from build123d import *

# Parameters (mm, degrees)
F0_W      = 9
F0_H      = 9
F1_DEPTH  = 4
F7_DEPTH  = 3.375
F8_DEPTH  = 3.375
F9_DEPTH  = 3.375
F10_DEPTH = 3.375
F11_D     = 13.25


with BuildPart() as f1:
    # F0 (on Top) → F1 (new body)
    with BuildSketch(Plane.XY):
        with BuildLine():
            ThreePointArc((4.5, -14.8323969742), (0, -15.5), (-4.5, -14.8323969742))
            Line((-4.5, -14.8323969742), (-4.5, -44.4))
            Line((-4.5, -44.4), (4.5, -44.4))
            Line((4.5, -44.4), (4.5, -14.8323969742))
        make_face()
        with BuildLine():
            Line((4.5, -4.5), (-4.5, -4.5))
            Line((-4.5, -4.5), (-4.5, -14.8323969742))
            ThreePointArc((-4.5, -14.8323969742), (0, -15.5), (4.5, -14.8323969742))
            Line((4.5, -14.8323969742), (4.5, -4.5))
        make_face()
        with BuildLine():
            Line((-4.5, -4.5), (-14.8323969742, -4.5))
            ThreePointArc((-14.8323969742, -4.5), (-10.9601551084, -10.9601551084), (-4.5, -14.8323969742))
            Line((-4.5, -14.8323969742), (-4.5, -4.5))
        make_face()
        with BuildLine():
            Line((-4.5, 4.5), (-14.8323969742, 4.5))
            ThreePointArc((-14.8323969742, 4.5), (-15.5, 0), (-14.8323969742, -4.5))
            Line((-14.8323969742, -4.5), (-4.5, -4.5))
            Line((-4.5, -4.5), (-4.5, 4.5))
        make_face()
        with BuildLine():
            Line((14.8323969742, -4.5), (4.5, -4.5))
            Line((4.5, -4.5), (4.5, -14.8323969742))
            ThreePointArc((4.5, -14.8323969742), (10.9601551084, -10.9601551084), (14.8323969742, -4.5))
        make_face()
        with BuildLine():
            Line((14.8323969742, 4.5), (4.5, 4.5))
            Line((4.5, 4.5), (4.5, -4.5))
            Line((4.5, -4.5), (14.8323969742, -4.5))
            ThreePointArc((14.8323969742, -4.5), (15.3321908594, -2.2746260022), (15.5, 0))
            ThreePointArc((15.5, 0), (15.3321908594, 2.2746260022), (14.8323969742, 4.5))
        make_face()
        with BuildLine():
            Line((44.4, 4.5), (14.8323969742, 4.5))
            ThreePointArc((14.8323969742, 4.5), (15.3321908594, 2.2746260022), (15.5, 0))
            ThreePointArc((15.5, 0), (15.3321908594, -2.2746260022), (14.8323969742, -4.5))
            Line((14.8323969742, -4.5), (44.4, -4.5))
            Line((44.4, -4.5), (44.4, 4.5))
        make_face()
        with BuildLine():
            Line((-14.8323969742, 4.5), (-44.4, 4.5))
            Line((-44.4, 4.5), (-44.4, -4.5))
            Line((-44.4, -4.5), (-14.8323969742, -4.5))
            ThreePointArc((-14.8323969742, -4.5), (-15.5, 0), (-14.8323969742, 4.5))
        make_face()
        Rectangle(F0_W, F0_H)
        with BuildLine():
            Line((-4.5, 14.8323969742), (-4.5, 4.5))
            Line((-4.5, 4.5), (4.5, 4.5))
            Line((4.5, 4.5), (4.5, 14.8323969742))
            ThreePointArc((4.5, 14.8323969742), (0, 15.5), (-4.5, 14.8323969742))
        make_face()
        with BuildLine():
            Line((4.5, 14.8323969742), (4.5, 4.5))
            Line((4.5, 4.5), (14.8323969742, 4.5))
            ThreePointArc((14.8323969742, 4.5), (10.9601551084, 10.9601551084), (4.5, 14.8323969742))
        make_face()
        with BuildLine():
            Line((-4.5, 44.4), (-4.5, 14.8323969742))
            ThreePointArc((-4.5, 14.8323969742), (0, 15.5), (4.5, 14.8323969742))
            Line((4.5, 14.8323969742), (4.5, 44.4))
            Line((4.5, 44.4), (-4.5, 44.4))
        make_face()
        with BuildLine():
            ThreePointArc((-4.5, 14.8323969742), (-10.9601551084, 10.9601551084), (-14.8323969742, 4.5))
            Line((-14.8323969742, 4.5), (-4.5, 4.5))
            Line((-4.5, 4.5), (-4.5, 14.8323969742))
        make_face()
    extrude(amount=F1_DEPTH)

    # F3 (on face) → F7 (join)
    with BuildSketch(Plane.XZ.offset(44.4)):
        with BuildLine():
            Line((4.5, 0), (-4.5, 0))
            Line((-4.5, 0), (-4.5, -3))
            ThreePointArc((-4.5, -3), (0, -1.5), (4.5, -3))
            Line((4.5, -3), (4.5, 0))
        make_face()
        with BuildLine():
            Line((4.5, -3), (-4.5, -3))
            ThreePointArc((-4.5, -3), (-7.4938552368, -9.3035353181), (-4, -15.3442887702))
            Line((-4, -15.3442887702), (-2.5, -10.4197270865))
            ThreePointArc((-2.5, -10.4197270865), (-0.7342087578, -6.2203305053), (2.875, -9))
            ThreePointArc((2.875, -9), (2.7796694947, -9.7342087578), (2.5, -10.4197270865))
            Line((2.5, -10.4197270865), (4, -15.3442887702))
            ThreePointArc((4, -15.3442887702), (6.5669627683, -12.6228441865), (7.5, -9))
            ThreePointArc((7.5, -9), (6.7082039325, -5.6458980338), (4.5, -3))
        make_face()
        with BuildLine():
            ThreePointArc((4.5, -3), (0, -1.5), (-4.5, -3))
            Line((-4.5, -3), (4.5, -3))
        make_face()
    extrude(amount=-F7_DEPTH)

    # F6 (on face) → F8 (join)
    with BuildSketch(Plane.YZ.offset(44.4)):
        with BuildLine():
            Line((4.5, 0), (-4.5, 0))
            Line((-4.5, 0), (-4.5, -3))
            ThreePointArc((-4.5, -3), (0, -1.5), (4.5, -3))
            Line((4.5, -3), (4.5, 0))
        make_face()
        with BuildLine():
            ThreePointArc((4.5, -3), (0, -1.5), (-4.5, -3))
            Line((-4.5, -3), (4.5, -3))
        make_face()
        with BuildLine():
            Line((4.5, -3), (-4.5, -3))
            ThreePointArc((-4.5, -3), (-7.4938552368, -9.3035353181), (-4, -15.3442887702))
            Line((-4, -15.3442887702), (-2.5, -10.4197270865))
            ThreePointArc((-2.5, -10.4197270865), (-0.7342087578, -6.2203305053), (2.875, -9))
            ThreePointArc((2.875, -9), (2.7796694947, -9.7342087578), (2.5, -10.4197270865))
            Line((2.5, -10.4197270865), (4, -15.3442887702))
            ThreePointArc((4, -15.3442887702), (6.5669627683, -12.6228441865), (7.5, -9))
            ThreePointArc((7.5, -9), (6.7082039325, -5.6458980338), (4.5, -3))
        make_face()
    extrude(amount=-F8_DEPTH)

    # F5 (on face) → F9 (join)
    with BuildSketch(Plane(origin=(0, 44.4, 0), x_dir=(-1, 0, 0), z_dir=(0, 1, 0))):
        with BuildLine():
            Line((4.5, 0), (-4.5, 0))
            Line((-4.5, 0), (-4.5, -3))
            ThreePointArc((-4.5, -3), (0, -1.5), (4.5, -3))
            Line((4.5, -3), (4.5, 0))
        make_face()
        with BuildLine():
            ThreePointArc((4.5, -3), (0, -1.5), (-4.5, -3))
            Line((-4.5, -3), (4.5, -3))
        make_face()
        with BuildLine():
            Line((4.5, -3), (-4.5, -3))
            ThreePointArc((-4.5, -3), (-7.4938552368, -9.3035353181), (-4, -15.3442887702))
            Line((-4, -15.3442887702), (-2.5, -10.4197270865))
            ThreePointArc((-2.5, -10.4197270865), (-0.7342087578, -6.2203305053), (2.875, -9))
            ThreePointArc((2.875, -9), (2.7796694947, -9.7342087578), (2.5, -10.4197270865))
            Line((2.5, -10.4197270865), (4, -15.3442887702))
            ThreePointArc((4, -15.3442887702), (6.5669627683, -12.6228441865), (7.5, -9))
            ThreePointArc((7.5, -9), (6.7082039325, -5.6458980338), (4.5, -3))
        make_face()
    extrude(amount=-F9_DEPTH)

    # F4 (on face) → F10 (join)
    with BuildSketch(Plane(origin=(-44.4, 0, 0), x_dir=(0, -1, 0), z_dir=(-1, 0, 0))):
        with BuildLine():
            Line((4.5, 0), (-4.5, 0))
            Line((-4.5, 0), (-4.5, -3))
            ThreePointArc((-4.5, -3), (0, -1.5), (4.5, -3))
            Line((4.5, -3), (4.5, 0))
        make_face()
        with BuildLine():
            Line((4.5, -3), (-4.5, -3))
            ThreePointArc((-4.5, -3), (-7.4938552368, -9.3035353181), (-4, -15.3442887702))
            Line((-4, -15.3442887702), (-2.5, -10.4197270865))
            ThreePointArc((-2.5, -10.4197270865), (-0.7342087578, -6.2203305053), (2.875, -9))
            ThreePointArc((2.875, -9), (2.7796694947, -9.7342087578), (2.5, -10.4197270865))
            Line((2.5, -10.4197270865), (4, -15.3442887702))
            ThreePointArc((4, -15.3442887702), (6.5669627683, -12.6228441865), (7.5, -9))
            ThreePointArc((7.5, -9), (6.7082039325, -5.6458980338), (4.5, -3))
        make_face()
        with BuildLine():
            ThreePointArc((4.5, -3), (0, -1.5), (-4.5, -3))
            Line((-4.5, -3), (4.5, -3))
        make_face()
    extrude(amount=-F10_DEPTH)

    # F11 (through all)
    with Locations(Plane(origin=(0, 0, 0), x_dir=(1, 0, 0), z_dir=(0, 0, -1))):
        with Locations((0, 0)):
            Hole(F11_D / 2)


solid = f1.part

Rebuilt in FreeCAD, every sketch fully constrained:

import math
import FreeCAD as App
import Part
import Sketcher

V = App.Vector

doc = App.newDocument("Part")
body = doc.addObject("PartDesign::Body", "Body")

sketch1 = doc.addObject("Sketcher::SketchObject", "Sketch")
body.addObject(sketch1)
sketch1.AttachmentSupport = (doc.XY_Plane, [""])
sketch1.MapMode = "FlatFace"
sketch1.addGeometry([
    Part.ArcOfCircle(Part.Circle(V(0, 0, 0), V(0, 0, 1), 15.5), math.radians(-163.122731), math.radians(-106.877269)),
    Part.LineSegment(V(-4.5, -14.832397, 0), V(-4.5, -44.4, 0)),
    Part.LineSegment(V(-4.5, -44.4, 0), V(4.5, -44.4, 0)),
    Part.LineSegment(V(4.5, -44.4, 0), V(4.5, -14.832397, 0)),
    Part.ArcOfCircle(Part.Circle(V(0, 0, 0), V(0, 0, 1), 15.5), math.radians(-73.122731), math.radians(-16.877269)),
    Part.LineSegment(V(14.832397, -4.5, 0), V(44.4, -4.5, 0)),
    Part.LineSegment(V(44.4, -4.5, 0), V(44.4, 4.5, 0)),
    Part.LineSegment(V(44.4, 4.5, 0), V(14.832397, 4.5, 0)),
    Part.ArcOfCircle(Part.Circle(V(0, 0, 0), V(0, 0, 1), 15.5), math.radians(16.877269), math.radians(73.122731)),
    Part.LineSegment(V(4.5, 14.832397, 0), V(4.5, 44.4, 0)),
    Part.LineSegment(V(4.5, 44.4, 0), V(-4.5, 44.4, 0)),
    Part.LineSegment(V(-4.5, 44.4, 0), V(-4.5, 14.832397, 0)),
    Part.ArcOfCircle(Part.Circle(V(0, 0, 0), V(0, 0, 1), 15.5), math.radians(106.877269), math.radians(163.122731)),
    Part.LineSegment(V(-14.832397, 4.5, 0), V(-44.4, 4.5, 0)),
    Part.LineSegment(V(-44.4, 4.5, 0), V(-44.4, -4.5, 0)),
    Part.LineSegment(V(-44.4, -4.5, 0), V(-14.832397, -4.5, 0)),
], False)
sketch1.addConstraint([
    Sketcher.Constraint("Coincident", 0, 2, 1, 1),
    Sketcher.Constraint("Coincident", 1, 2, 2, 1),
    Sketcher.Constraint("Coincident", 2, 2, 3, 1),
    Sketcher.Constraint("Coincident", 3, 2, 4, 1),
    Sketcher.Constraint("Coincident", 4, 2, 5, 1),
    Sketcher.Constraint("Coincident", 5, 2, 6, 1),
    Sketcher.Constraint("Coincident", 6, 2, 7, 1),
    Sketcher.Constraint("Coincident", 7, 2, 8, 1),
    Sketcher.Constraint("Coincident", 8, 2, 9, 1),
    Sketcher.Constraint("Coincident", 9, 2, 10, 1),
    Sketcher.Constraint("Coincident", 10, 2, 11, 1),
    Sketcher.Constraint("Coincident", 11, 2, 12, 1),
    Sketcher.Constraint("Coincident", 12, 2, 13, 1),
    Sketcher.Constraint("Coincident", 13, 2, 14, 1),
    Sketcher.Constraint("Coincident", 14, 2, 15, 1),
    Sketcher.Constraint("Coincident", 15, 2, 0, 1),
    Sketcher.Constraint("Vertical", 1),
    Sketcher.Constraint("Horizontal", 2),
    Sketcher.Constraint("Vertical", 3),
    Sketcher.Constraint("Horizontal", 5),
    Sketcher.Constraint("Vertical", 6),
    Sketcher.Constraint("Horizontal", 7),
    Sketcher.Constraint("Vertical", 9),
    Sketcher.Constraint("Horizontal", 10),
    Sketcher.Constraint("Vertical", 11),
    Sketcher.Constraint("Horizontal", 13),
    Sketcher.Constraint("Vertical", 14),
    Sketcher.Constraint("Horizontal", 15),
    Sketcher.Constraint("Coincident", 0, 3, -1, 1),
    Sketcher.Constraint("Coincident", 4, 3, -1, 1),
    Sketcher.Constraint("Coincident", 8, 3, -1, 1),
    Sketcher.Constraint("Coincident", 12, 3, -1, 1),
    Sketcher.Constraint("Equal", 0, 4),
    Sketcher.Constraint("Equal", 4, 8),
    Sketcher.Constraint("Equal", 8, 12),
    Sketcher.Constraint("Symmetric", 1, 2, 9, 2, -1, 1),
    Sketcher.Constraint("Symmetric", 5, 2, 13, 2, -1, 1),
    Sketcher.Constraint("Horizontal", 0, 2, 3, 2),
    Sketcher.Constraint("Horizontal", 8, 2, 11, 2),
    Sketcher.Constraint("Horizontal", 7, 2, 12, 2),
    Sketcher.Constraint("Horizontal", 5, 2, 14, 2),
    Sketcher.Constraint("Equal", 15, 1),
    Sketcher.Constraint("Equal", 10, 6),
    Sketcher.Constraint("Radius", 0, 15.5),
    Sketcher.Constraint("DistanceX", 2, 1, 2, 2, 9.0),
    Sketcher.Constraint("DistanceY", 1, 2, -1, 1, 44.4),
])
pad1 = doc.addObject("PartDesign::Pad", "Pad")
body.addObject(pad1)
pad1.Profile = sketch1
pad1.Length = 4

sketch2 = doc.addObject("Sketcher::SketchObject", "Sketch001")
body.addObject(sketch2)
sketch2.AttachmentSupport = (doc.XZ_Plane, [""])
sketch2.MapMode = "FlatFace"
sketch2.AttachmentOffset = App.Placement(V(0, 0, 44.4), App.Rotation())
sketch2.addGeometry([
    Part.LineSegment(V(4.5, 0, 0), V(-4.5, 0, 0)),
    Part.LineSegment(V(-4.5, 0, 0), V(-4.5, -3, 0)),
    Part.ArcOfCircle(Part.Circle(V(0, -9, 0), V(0, 0, 1), 7.5), math.radians(126.869898), math.radians(237.769047)),
    Part.LineSegment(V(-4, -15.344289, 0), V(-2.5, -10.419727, 0)),
    Part.ArcOfCircle(Part.Circle(V(0, -9, 0), V(0, 0, 1), 2.875), math.radians(0), math.radians(209.591846)),
    Part.ArcOfCircle(Part.Circle(V(0, -9, 0), V(0, 0, 1), 2.875), math.radians(-29.591846), math.radians(0)),
    Part.LineSegment(V(2.5, -10.419727, 0), V(4, -15.344289, 0)),
    Part.ArcOfCircle(Part.Circle(V(0, -9, 0), V(0, 0, 1), 7.5), math.radians(-57.769047), math.radians(0)),
    Part.ArcOfCircle(Part.Circle(V(0, -9, 0), V(0, 0, 1), 7.5), math.radians(0), math.radians(53.130102)),
    Part.LineSegment(V(4.5, -3, 0), V(4.5, 0, 0)),
], False)
sketch2.addConstraint([
    Sketcher.Constraint("Coincident", 0, 2, 1, 1),
    Sketcher.Constraint("Coincident", 1, 2, 2, 1),
    Sketcher.Constraint("Coincident", 2, 2, 3, 1),
    Sketcher.Constraint("Coincident", 3, 2, 4, 2),
    Sketcher.Constraint("Tangent", 4, 1, 5, 2),
    Sketcher.Constraint("Coincident", 5, 1, 6, 1),
    Sketcher.Constraint("Coincident", 6, 2, 7, 1),
    Sketcher.Constraint("Tangent", 7, 2, 8, 1),
    Sketcher.Constraint("Coincident", 8, 2, 9, 1),
    Sketcher.Constraint("Coincident", 9, 2, 0, 1),
    Sketcher.Constraint("Horizontal", 0),
    Sketcher.Constraint("Vertical", 1),
    Sketcher.Constraint("Vertical", 9),
    Sketcher.Constraint("Coincident", 4, 3, 2, 3),
    Sketcher.Constraint("Coincident", 7, 3, 2, 3),
    Sketcher.Constraint("Equal", 4, 5),
    Sketcher.Constraint("Equal", 2, 7),
    Sketcher.Constraint("Equal", 7, 8),
    Sketcher.Constraint("Symmetric", 0, 2, 9, 2, -1, 1),
    Sketcher.Constraint("Symmetric", 3, 2, 5, 1, -2),
    Sketcher.Constraint("Horizontal", 8, 3, 4, 1),
    Sketcher.Constraint("Horizontal", 2, 2, 6, 2),
    Sketcher.Constraint("Horizontal", 4, 1, 7, 2),
    Sketcher.Constraint("Radius", 2, 7.5),
    Sketcher.Constraint("DistanceX", 0, 2, 0, 1, 9.0),
    Sketcher.Constraint("DistanceY", 1, 2, 1, 1, 3.0),
    Sketcher.Constraint("DistanceX", 2, 2, -1, 1, 4.0),
    Sketcher.Constraint("Radius", 4, 2.875),
    Sketcher.Constraint("DistanceX", 5, 1, 7, 2, 5.0),
])
pad2 = doc.addObject("PartDesign::Pad", "Pad001")
body.addObject(pad2)
pad2.Profile = sketch2
pad2.Length = 3.375
pad2.Reversed = True

sketch3 = doc.addObject("Sketcher::SketchObject", "Sketch002")
body.addObject(sketch3)
sketch3.AttachmentSupport = (doc.YZ_Plane, [""])
sketch3.MapMode = "FlatFace"
sketch3.AttachmentOffset = App.Placement(V(0, 0, 44.4), App.Rotation())
sketch3.addGeometry([
    Part.LineSegment(V(4.5, 0, 0), V(-4.5, 0, 0)),
    Part.LineSegment(V(-4.5, 0, 0), V(-4.5, -3, 0)),
    Part.ArcOfCircle(Part.Circle(V(0, -9, 0), V(0, 0, 1), 7.5), math.radians(126.869898), math.radians(237.769047)),
    Part.LineSegment(V(-4, -15.344289, 0), V(-2.5, -10.419727, 0)),
    Part.ArcOfCircle(Part.Circle(V(0, -9, 0), V(0, 0, 1), 2.875), math.radians(0), math.radians(209.591846)),
    Part.ArcOfCircle(Part.Circle(V(0, -9, 0), V(0, 0, 1), 2.875), math.radians(-29.591846), math.radians(0)),
    Part.LineSegment(V(2.5, -10.419727, 0), V(4, -15.344289, 0)),
    Part.ArcOfCircle(Part.Circle(V(0, -9, 0), V(0, 0, 1), 7.5), math.radians(-57.769047), math.radians(0)),
    Part.ArcOfCircle(Part.Circle(V(0, -9, 0), V(0, 0, 1), 7.5), math.radians(0), math.radians(53.130102)),
    Part.LineSegment(V(4.5, -3, 0), V(4.5, 0, 0)),
], False)
sketch3.addConstraint([
    Sketcher.Constraint("Coincident", 0, 2, 1, 1),
    Sketcher.Constraint("Coincident", 1, 2, 2, 1),
    Sketcher.Constraint("Coincident", 2, 2, 3, 1),
    Sketcher.Constraint("Coincident", 3, 2, 4, 2),
    Sketcher.Constraint("Tangent", 4, 1, 5, 2),
    Sketcher.Constraint("Coincident", 5, 1, 6, 1),
    Sketcher.Constraint("Coincident", 6, 2, 7, 1),
    Sketcher.Constraint("Tangent", 7, 2, 8, 1),
    Sketcher.Constraint("Coincident", 8, 2, 9, 1),
    Sketcher.Constraint("Coincident", 9, 2, 0, 1),
    Sketcher.Constraint("Horizontal", 0),
    Sketcher.Constraint("Vertical", 1),
    Sketcher.Constraint("Vertical", 9),
    Sketcher.Constraint("Coincident", 4, 3, 2, 3),
    Sketcher.Constraint("Coincident", 7, 3, 2, 3),
    Sketcher.Constraint("Equal", 4, 5),
    Sketcher.Constraint("Equal", 2, 7),
    Sketcher.Constraint("Equal", 7, 8),
    Sketcher.Constraint("Symmetric", 0, 2, 9, 2, -1, 1),
    Sketcher.Constraint("Symmetric", 3, 2, 5, 1, -2),
    Sketcher.Constraint("Horizontal", 8, 3, 4, 1),
    Sketcher.Constraint("Horizontal", 2, 2, 6, 2),
    Sketcher.Constraint("Horizontal", 4, 1, 7, 2),
    Sketcher.Constraint("Radius", 2, 7.5),
    Sketcher.Constraint("DistanceX", 0, 2, 0, 1, 9.0),
    Sketcher.Constraint("DistanceY", 1, 2, 1, 1, 3.0),
    Sketcher.Constraint("DistanceX", 2, 2, -1, 1, 4.0),
    Sketcher.Constraint("Radius", 4, 2.875),
    Sketcher.Constraint("DistanceX", 5, 1, 7, 2, 5.0),
])
pad3 = doc.addObject("PartDesign::Pad", "Pad002")
body.addObject(pad3)
pad3.Profile = sketch3
pad3.Length = 3.375
pad3.Reversed = True

sketch4 = doc.addObject("Sketcher::SketchObject", "Sketch003")
body.addObject(sketch4)
sketch4.AttachmentSupport = (doc.XZ_Plane, [""])
sketch4.MapMode = "FlatFace"
sketch4.AttachmentOffset = App.Placement(V(0, 0, -44.4), App.Rotation())
sketch4.addGeometry([
    Part.LineSegment(V(-4.5, 0, 0), V(4.5, 0, 0)),
    Part.LineSegment(V(4.5, 0, 0), V(4.5, -3, 0)),
    Part.ArcOfCircle(Part.Circle(V(0, -9, 0), V(0, 0, 1), 7.5), math.radians(-57.769047), math.radians(53.130102)),
    Part.LineSegment(V(4, -15.344289, 0), V(2.5, -10.419727, 0)),
    Part.ArcOfCircle(Part.Circle(V(0, -9, 0), V(0, 0, 1), 2.875), math.radians(-29.591846), math.radians(180)),
    Part.ArcOfCircle(Part.Circle(V(0, -9, 0), V(0, 0, 1), 2.875), math.radians(180), math.radians(209.591846)),
    Part.LineSegment(V(-2.5, -10.419727, 0), V(-4, -15.344289, 0)),
    Part.ArcOfCircle(Part.Circle(V(0, -9, 0), V(0, 0, 1), 7.5), math.radians(180), math.radians(237.769047)),
    Part.ArcOfCircle(Part.Circle(V(0, -9, 0), V(0, 0, 1), 7.5), math.radians(126.869898), math.radians(180)),
    Part.LineSegment(V(-4.5, -3, 0), V(-4.5, 0, 0)),
], False)
sketch4.addConstraint([
    Sketcher.Constraint("Coincident", 0, 2, 1, 1),
    Sketcher.Constraint("Coincident", 1, 2, 2, 2),
    Sketcher.Constraint("Coincident", 2, 1, 3, 1),
    Sketcher.Constraint("Coincident", 3, 2, 4, 1),
    Sketcher.Constraint("Tangent", 4, 2, 5, 1),
    Sketcher.Constraint("Coincident", 5, 2, 6, 1),
    Sketcher.Constraint("Coincident", 6, 2, 7, 2),
    Sketcher.Constraint("Tangent", 7, 1, 8, 2),
    Sketcher.Constraint("Coincident", 8, 1, 9, 1),
    Sketcher.Constraint("Coincident", 9, 2, 0, 1),
    Sketcher.Constraint("Horizontal", 0),
    Sketcher.Constraint("Vertical", 1),
    Sketcher.Constraint("Vertical", 9),
    Sketcher.Constraint("Coincident", 4, 3, 2, 3),
    Sketcher.Constraint("Coincident", 7, 3, 2, 3),
    Sketcher.Constraint("Equal", 4, 5),
    Sketcher.Constraint("Equal", 2, 7),
    Sketcher.Constraint("Equal", 7, 8),
    Sketcher.Constraint("Symmetric", 0, 2, 9, 2, -1, 1),
    Sketcher.Constraint("Symmetric", 3, 2, 5, 2, -2),
    Sketcher.Constraint("Horizontal", 8, 3, 4, 2),
    Sketcher.Constraint("Horizontal", 2, 1, 6, 2),
    Sketcher.Constraint("Horizontal", 4, 2, 7, 1),
    Sketcher.Constraint("Radius", 2, 7.5),
    Sketcher.Constraint("DistanceX", 0, 1, 0, 2, 9.0),
    Sketcher.Constraint("DistanceY", 1, 2, 1, 1, 3.0),
    Sketcher.Constraint("DistanceX", -1, 1, 2, 1, 4.0),
    Sketcher.Constraint("Radius", 4, 2.875),
    Sketcher.Constraint("DistanceX", 7, 1, 5, 2, 5.0),
])
pad4 = doc.addObject("PartDesign::Pad", "Pad003")
body.addObject(pad4)
pad4.Profile = sketch4
pad4.Length = 3.375

sketch5 = doc.addObject("Sketcher::SketchObject", "Sketch004")
body.addObject(sketch5)
sketch5.AttachmentSupport = (doc.YZ_Plane, [""])
sketch5.MapMode = "FlatFace"
sketch5.AttachmentOffset = App.Placement(V(0, 0, -44.4), App.Rotation())
sketch5.addGeometry([
    Part.LineSegment(V(-4.5, 0, 0), V(4.5, 0, 0)),
    Part.LineSegment(V(4.5, 0, 0), V(4.5, -3, 0)),
    Part.ArcOfCircle(Part.Circle(V(0, -9, 0), V(0, 0, 1), 7.5), math.radians(-57.769047), math.radians(53.130102)),
    Part.LineSegment(V(4, -15.344289, 0), V(2.5, -10.419727, 0)),
    Part.ArcOfCircle(Part.Circle(V(0, -9, 0), V(0, 0, 1), 2.875), math.radians(-29.591846), math.radians(180)),
    Part.ArcOfCircle(Part.Circle(V(0, -9, 0), V(0, 0, 1), 2.875), math.radians(180), math.radians(209.591846)),
    Part.LineSegment(V(-2.5, -10.419727, 0), V(-4, -15.344289, 0)),
    Part.ArcOfCircle(Part.Circle(V(0, -9, 0), V(0, 0, 1), 7.5), math.radians(180), math.radians(237.769047)),
    Part.ArcOfCircle(Part.Circle(V(0, -9, 0), V(0, 0, 1), 7.5), math.radians(126.869898), math.radians(180)),
    Part.LineSegment(V(-4.5, -3, 0), V(-4.5, 0, 0)),
], False)
sketch5.addConstraint([
    Sketcher.Constraint("Coincident", 0, 2, 1, 1),
    Sketcher.Constraint("Coincident", 1, 2, 2, 2),
    Sketcher.Constraint("Coincident", 2, 1, 3, 1),
    Sketcher.Constraint("Coincident", 3, 2, 4, 1),
    Sketcher.Constraint("Tangent", 4, 2, 5, 1),
    Sketcher.Constraint("Coincident", 5, 2, 6, 1),
    Sketcher.Constraint("Coincident", 6, 2, 7, 2),
    Sketcher.Constraint("Tangent", 7, 1, 8, 2),
    Sketcher.Constraint("Coincident", 8, 1, 9, 1),
    Sketcher.Constraint("Coincident", 9, 2, 0, 1),
    Sketcher.Constraint("Horizontal", 0),
    Sketcher.Constraint("Vertical", 1),
    Sketcher.Constraint("Vertical", 9),
    Sketcher.Constraint("Coincident", 4, 3, 2, 3),
    Sketcher.Constraint("Coincident", 7, 3, 2, 3),
    Sketcher.Constraint("Equal", 4, 5),
    Sketcher.Constraint("Equal", 2, 7),
    Sketcher.Constraint("Equal", 7, 8),
    Sketcher.Constraint("Symmetric", 0, 2, 9, 2, -1, 1),
    Sketcher.Constraint("Symmetric", 3, 2, 5, 2, -2),
    Sketcher.Constraint("Horizontal", 8, 3, 4, 2),
    Sketcher.Constraint("Horizontal", 2, 1, 6, 2),
    Sketcher.Constraint("Horizontal", 4, 2, 7, 1),
    Sketcher.Constraint("Radius", 2, 7.5),
    Sketcher.Constraint("DistanceX", 0, 1, 0, 2, 9.0),
    Sketcher.Constraint("DistanceY", 1, 2, 1, 1, 3.0),
    Sketcher.Constraint("DistanceX", -1, 1, 2, 1, 4.0),
    Sketcher.Constraint("Radius", 4, 2.875),
    Sketcher.Constraint("DistanceX", 7, 1, 5, 2, 5.0),
])
pad5 = doc.addObject("PartDesign::Pad", "Pad004")
body.addObject(pad5)
pad5.Profile = sketch5
pad5.Length = 3.375

sketch6 = doc.addObject("Sketcher::SketchObject", "Sketch005")
body.addObject(sketch6)
sketch6.AttachmentSupport = (doc.XY_Plane, [""])
sketch6.MapMode = "FlatFace"
sketch6.addGeometry(Part.Circle(V(0, 0, 0), V(0, 0, 1), 6.625), False)
sketch6.addConstraint([
    Sketcher.Constraint("Coincident", 0, 3, -1, 1),
    Sketcher.Constraint("Diameter", 0, 13.25),
])
doc.recompute()
hole = doc.addObject("PartDesign::Hole", "Hole")
body.addObject(hole)
hole.Profile = sketch6
hole.ThreadType = "None"
hole.Diameter = 13.25
hole.DepthType = "ThroughAll"
hole.Reversed = True

doc.recompute()
